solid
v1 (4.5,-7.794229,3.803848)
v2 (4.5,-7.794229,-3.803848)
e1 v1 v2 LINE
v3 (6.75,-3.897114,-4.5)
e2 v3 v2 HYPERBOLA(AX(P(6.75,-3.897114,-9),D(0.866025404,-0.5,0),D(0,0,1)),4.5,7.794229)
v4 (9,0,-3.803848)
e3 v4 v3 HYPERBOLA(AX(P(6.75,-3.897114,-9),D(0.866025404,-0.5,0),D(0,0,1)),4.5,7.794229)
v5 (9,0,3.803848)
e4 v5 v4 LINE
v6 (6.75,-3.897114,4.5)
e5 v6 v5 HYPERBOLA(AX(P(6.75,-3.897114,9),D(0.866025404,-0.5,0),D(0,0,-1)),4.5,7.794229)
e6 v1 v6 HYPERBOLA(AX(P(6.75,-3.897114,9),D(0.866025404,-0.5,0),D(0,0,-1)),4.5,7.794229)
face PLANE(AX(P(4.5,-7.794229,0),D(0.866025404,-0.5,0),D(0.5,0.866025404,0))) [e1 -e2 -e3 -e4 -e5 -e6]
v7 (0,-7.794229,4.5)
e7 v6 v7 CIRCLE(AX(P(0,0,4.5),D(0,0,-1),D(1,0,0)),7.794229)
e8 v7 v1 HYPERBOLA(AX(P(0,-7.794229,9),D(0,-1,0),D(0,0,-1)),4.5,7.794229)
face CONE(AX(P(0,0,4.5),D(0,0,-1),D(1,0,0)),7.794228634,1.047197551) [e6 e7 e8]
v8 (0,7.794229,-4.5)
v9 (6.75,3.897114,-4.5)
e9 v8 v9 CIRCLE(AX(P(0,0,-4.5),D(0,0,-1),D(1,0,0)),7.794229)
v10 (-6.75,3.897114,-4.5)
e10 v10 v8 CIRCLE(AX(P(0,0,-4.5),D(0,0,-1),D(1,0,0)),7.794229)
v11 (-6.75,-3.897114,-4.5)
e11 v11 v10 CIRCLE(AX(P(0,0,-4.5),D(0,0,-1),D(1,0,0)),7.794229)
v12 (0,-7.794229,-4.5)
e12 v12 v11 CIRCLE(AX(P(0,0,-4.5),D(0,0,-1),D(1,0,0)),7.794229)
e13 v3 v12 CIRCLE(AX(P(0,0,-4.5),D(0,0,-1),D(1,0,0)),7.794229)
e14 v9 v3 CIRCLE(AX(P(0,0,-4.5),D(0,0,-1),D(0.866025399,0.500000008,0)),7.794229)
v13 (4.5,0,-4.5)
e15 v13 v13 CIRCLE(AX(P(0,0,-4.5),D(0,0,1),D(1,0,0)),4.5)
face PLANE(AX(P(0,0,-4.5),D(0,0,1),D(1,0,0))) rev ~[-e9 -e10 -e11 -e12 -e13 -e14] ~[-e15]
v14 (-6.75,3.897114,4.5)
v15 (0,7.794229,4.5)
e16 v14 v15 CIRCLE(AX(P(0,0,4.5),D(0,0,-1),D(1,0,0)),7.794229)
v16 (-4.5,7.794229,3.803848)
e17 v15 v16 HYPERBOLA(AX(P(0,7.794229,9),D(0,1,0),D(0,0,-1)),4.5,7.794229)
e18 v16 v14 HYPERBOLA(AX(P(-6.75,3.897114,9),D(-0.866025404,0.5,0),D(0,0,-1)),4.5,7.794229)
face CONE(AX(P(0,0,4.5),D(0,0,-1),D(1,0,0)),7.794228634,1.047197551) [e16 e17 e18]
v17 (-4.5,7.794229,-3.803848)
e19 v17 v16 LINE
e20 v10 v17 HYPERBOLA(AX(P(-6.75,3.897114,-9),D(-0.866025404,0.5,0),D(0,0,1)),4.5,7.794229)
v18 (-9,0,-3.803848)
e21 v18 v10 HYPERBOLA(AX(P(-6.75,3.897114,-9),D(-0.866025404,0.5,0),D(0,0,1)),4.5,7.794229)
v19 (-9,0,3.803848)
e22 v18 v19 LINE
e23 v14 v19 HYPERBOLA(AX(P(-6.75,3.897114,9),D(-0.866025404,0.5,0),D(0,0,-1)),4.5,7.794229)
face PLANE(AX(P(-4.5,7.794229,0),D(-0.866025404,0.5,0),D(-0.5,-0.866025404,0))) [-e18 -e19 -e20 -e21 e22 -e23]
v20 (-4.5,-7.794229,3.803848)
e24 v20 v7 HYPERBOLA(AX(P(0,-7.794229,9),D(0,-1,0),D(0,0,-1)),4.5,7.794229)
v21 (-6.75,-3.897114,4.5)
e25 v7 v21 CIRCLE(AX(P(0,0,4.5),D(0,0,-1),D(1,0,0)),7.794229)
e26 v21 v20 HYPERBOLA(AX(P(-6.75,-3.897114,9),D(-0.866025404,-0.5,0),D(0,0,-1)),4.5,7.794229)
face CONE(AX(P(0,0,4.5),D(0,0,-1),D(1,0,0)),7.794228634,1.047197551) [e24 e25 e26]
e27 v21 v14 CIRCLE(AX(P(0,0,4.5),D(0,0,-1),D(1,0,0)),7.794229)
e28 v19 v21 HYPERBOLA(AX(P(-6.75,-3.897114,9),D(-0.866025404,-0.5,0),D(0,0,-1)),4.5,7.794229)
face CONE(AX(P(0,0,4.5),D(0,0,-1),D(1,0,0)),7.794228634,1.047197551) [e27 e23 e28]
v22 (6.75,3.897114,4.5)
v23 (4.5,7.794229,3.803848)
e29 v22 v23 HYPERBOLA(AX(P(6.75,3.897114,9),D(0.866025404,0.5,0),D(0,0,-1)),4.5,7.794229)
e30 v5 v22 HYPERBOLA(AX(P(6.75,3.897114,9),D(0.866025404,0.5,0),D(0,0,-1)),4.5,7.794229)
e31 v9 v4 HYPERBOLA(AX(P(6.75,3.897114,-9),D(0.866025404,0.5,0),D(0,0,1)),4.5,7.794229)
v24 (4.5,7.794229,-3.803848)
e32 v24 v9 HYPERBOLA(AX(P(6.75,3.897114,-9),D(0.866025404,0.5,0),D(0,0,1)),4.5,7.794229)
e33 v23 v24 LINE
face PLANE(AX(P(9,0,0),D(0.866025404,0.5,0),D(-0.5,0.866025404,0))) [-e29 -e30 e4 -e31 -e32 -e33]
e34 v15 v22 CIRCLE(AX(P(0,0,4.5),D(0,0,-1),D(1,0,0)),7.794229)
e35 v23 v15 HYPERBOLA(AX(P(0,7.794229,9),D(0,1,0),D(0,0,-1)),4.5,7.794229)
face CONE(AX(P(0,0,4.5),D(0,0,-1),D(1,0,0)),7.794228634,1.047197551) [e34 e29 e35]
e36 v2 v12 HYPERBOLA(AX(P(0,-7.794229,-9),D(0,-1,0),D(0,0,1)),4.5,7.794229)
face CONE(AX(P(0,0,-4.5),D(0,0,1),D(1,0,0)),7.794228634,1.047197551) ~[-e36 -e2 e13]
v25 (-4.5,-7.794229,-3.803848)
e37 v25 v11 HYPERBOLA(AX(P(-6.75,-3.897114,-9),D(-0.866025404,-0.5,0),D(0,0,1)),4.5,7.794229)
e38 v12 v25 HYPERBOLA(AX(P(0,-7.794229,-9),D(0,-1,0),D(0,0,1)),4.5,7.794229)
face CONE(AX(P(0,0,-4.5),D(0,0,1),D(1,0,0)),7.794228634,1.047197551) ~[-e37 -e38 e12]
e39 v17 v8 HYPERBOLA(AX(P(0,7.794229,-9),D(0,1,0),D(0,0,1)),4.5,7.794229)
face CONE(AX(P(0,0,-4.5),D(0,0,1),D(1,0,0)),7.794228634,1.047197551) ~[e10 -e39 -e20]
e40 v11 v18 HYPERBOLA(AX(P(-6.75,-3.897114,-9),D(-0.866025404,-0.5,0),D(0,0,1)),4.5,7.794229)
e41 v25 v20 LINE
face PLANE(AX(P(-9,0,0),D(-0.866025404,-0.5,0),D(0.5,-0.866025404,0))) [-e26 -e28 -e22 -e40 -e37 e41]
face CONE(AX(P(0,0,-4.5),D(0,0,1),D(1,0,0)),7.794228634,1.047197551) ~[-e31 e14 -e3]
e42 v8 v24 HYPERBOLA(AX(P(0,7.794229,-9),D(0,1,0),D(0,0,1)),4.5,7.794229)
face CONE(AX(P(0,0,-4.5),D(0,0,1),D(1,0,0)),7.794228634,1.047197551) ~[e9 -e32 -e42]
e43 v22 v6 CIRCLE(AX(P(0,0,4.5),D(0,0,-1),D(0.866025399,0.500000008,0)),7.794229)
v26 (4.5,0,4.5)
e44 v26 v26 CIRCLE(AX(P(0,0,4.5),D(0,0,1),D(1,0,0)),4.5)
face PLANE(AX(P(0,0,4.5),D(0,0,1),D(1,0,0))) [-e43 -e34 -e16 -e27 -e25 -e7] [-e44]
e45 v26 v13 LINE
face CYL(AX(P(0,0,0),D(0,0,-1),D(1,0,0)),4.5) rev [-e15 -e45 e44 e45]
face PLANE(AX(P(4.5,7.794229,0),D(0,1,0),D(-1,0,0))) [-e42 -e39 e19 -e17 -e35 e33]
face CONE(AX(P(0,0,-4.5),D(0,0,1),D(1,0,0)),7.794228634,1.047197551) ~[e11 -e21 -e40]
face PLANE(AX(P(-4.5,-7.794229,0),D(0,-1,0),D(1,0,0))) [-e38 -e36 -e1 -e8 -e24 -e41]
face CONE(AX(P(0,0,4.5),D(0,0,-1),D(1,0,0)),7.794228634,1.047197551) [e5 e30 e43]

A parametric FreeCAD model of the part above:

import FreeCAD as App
import Part
import Sketcher
Q = App.Units.Quantity

doc = App.newDocument("Part")
params = doc.addObject("Spreadsheet::Sheet", "Params")
for row, (alias, value) in enumerate([
    ("sketch1_diameter", "9 mm"),
    ("sketch1_width", "9 mm"),
    ("sketch1_length", "9 mm"),
    ("pad1_length", "9 mm"),
    ("pocket1_length", "9 mm"),
    ("pocket1_taper", "60 deg"),
], start=1):
    params.set(f"A{row}", alias)
    params.set(f"B{row}", "=" + value)
    params.setAlias(f"B{row}", alias)

body = doc.addObject("PartDesign::Body", "Body")

# Sketch on XY plane
sketch1 = body.newObject("Sketcher::SketchObject", "Sketch")
sketch1.AttachmentSupport = (doc.getObject("XY_Plane"), [""])
sketch1.MapMode = "FlatFace"
sketch1.addGeometry(Part.LineSegment(App.Vector(4.5, 7.794229, 0), App.Vector(-4.5, 7.794229, 0)), False)
sketch1.addGeometry(Part.LineSegment(App.Vector(-4.5, 7.794229, 0), App.Vector(-9, 0, 0)), False)
sketch1.addGeometry(Part.LineSegment(App.Vector(-9, 0, 0), App.Vector(-4.5, -7.794229, 0)), False)
sketch1.addGeometry(Part.LineSegment(App.Vector(-4.5, -7.794229, 0), App.Vector(4.5, -7.794229, 0)), False)
sketch1.addGeometry(Part.LineSegment(App.Vector(4.5, -7.794229, 0), App.Vector(9, 0, 0)), False)
sketch1.addGeometry(Part.LineSegment(App.Vector(9, 0, 0), App.Vector(4.5, 7.794229, 0)), False)
sketch1.addGeometry(Part.Circle(App.Vector(0, 0, 0), App.Vector(0, 0, 1), 4.5), False)
sketch1.addConstraint(Sketcher.Constraint("Coincident", 0, 2, 1, 1))
sketch1.addConstraint(Sketcher.Constraint("Coincident", 1, 2, 2, 1))
sketch1.addConstraint(Sketcher.Constraint("Coincident", 2, 2, 3, 1))
sketch1.addConstraint(Sketcher.Constraint("Coincident", 3, 2, 4, 1))
sketch1.addConstraint(Sketcher.Constraint("Coincident", 4, 2, 5, 1))
sketch1.addConstraint(Sketcher.Constraint("Coincident", 5, 2, 0, 1))
sketch1.addConstraint(Sketcher.Constraint("Horizontal", 0))
sketch1.addConstraint(Sketcher.Constraint("Horizontal", 3))
sketch1.addConstraint(Sketcher.Constraint("Coincident", 6, 3, -1, 1))
sketch1.addConstraint(Sketcher.Constraint("Symmetric", 0, 2, 3, 2, -1, 1))
sketch1.addConstraint(Sketcher.Constraint("Symmetric", 1, 2, 4, 2, -1, 1))
sketch1.addConstraint(Sketcher.Constraint("PointOnObject", 1, 2, -1))
sketch1.addConstraint(Sketcher.Constraint("Parallel", 2, 5))
sketch1.addConstraint(Sketcher.Constraint("Vertical", 0, 2, 2, 2))
sketch1.addConstraint(Sketcher.Constraint("Diameter", 6, 9.0))
sketch1.addConstraint(Sketcher.Constraint("DistanceX", 0, 2, 0, 1, 9.0))
sketch1.addConstraint(Sketcher.Constraint("Angle", 1, Q("-120 deg")))
sketch1.addConstraint(Sketcher.Constraint("Distance", 1, 9.0))
sketch1.setExpression("Constraints[14]", "Params.sketch1_diameter")
sketch1.setExpression("Constraints[15]", "Params.sketch1_width")
sketch1.setExpression("Constraints[17]", "Params.sketch1_length")
pad1 = body.newObject("PartDesign::Pad", "Pad")
pad1.Profile = sketch1
pad1.setExpression("Length", "Params.pad1_length")
pad1.Midplane = True

# Sketch on XY plane
sketch2 = body.newObject("Sketcher::SketchObject", "Sketch001")
sketch2.AttachmentSupport = (doc.getObject("XY_Plane"), [""])
sketch2.MapMode = "FlatFace"
sketch2.AttachmentOffset = App.Placement(App.Vector(0, 0, 4.5), App.Rotation())
sketch2.addGeometry(Part.LineSegment(App.Vector(-28.134, 26.928, 0), App.Vector(-28.134, -26.928, 0)), False)
sketch2.addGeometry(Part.LineSegment(App.Vector(-28.134, -26.928, 0), App.Vector(28.134, -26.928, 0)), False)
sketch2.addGeometry(Part.LineSegment(App.Vector(28.134, -26.928, 0), App.Vector(28.134, 26.928, 0)), False)
sketch2.addGeometry(Part.LineSegment(App.Vector(28.134, 26.928, 0), App.Vector(-28.134, 26.928, 0)), False)
sketch2.addGeometry(Part.Circle(App.Vector(0, 0, 0), App.Vector(0, 0, 1), 7.794229), False)
sketch2.addConstraint(Sketcher.Constraint("Coincident", 0, 2, 1, 1))
sketch2.addConstraint(Sketcher.Constraint("Coincident", 1, 2, 2, 1))
sketch2.addConstraint(Sketcher.Constraint("Coincident", 2, 2, 3, 1))
sketch2.addConstraint(Sketcher.Constraint("Coincident", 3, 2, 0, 1))
sketch2.addConstraint(Sketcher.Constraint("Vertical", 0))
sketch2.addConstraint(Sketcher.Constraint("Horizontal", 1))
sketch2.addConstraint(Sketcher.Constraint("Vertical", 2))
sketch2.addConstraint(Sketcher.Constraint("Horizontal", 3))
sketch2.addConstraint(Sketcher.Constraint("Coincident", 4, 3, -1, 1))
sketch2.addConstraint(Sketcher.Constraint("Symmetric", 0, 2, 2, 2, -1, 1))
sketch2.addConstraint(Sketcher.Constraint("DistanceX", 1, 1, 1, 2, 56.268))
sketch2.addConstraint(Sketcher.Constraint("DistanceY", 0, 2, 0, 1, 53.856))
sketch2.addConstraint(Sketcher.Constraint("Diameter", 4, 15.588457))
pocket1 = body.newObject("PartDesign::Pocket", "Pocket")
pocket1.Profile = sketch2
pocket1.setExpression("Length", "Params.pocket1_length")
pocket1.setExpression("TaperAngle", "Params.pocket1_taper")
doc.recompute()

mirrored = body.newObject("PartDesign::Mirrored", "Mirrored")
mirrored.Originals = [pocket1]
mirrored.MirrorPlane = (doc.getObject("XY_Plane"), [""])
body.Tip = mirrored

doc.recompute()
